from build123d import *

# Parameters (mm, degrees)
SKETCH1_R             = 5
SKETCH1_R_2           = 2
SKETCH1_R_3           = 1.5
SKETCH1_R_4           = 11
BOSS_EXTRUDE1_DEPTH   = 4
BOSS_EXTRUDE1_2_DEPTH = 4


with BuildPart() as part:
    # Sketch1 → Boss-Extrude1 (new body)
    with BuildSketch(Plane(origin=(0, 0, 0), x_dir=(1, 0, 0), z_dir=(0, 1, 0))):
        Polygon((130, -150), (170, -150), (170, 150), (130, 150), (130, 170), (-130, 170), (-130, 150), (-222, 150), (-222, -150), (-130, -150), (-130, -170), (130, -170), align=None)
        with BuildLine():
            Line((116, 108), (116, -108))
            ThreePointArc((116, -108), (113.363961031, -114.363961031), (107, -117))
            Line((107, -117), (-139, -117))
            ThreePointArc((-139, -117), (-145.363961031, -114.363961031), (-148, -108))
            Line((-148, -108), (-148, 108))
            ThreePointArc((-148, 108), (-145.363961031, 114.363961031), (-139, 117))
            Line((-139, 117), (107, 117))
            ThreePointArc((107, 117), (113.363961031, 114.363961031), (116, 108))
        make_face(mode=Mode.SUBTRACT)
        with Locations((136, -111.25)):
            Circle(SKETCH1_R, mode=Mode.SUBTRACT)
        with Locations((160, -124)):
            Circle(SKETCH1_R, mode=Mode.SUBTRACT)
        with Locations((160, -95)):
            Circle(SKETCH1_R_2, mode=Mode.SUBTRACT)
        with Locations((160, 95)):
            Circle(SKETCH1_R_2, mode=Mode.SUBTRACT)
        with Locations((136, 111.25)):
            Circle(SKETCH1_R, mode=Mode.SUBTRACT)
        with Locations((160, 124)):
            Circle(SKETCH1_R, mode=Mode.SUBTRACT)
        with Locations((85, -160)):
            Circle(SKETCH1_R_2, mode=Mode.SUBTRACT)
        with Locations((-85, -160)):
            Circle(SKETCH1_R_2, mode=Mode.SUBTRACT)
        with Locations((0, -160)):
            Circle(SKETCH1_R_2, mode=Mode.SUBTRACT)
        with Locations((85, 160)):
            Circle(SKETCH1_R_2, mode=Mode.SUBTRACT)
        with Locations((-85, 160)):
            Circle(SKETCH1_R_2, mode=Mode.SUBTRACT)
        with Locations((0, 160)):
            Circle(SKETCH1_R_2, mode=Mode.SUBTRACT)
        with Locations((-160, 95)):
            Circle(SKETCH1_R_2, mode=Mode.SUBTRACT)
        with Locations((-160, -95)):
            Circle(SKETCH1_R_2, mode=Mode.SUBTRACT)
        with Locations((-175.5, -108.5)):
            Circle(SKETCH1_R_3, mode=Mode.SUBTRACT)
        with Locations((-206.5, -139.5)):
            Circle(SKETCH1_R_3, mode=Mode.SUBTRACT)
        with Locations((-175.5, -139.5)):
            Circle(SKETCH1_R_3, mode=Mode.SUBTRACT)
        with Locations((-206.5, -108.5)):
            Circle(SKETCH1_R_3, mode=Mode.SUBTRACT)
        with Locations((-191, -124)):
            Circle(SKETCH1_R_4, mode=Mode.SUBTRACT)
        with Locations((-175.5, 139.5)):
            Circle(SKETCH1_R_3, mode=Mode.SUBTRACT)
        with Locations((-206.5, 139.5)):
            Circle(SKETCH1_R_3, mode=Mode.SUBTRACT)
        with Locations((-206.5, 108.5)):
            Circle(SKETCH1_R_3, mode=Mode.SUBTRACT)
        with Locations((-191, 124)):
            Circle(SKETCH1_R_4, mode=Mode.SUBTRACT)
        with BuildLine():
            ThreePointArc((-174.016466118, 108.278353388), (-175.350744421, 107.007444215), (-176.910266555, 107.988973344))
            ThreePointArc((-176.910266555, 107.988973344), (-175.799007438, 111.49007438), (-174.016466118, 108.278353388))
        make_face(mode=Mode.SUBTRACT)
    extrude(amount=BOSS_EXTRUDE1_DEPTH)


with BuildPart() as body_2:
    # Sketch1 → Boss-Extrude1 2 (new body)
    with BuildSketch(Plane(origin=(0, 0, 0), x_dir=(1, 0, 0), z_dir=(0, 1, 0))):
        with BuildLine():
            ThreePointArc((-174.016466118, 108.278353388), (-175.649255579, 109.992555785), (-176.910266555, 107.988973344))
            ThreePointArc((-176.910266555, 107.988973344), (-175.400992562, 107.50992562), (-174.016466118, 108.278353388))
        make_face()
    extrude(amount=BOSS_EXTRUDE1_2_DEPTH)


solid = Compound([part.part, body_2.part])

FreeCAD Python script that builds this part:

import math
import FreeCAD as App
import Part
import Sketcher

V = App.Vector
Q = App.Units.Quantity


def add_polygon(sketch, points):
    """Adds a closed chain of lines whose ends are joined by coincident constraints."""
    first, n = sketch.GeometryCount, len(points)
    for a, b in zip(points, points[1:] + points[:1]):
        sketch.addGeometry(Part.LineSegment(App.Vector(*a, 0), App.Vector(*b, 0)), False)
    for i in range(n):
        sketch.addConstraint(Sketcher.Constraint("Coincident", first + i, 2, first + (i + 1) % n, 1))

doc = App.newDocument("Part")
body = doc.addObject("PartDesign::Body", "Body")

sketch1 = body.newObject("Sketcher::SketchObject", "Sketch")
sketch1.AttachmentSupport = (doc.getObject("XZ_Plane"), [""])
sketch1.MapMode = "FlatFace"
add_polygon(sketch1, [(130, 150), (170, 150), (170, -150), (130, -150), (130, -170), (-130, -170), (-130, -150), (-222, -150), (-222, 150), (-130, 150), (-130, 170), (130, 170)])
sketch1.addGeometry(Part.Circle(V(-206.5, 139.5, 0), V(0, 0, 1), 1.5), False)
sketch1.addGeometry(Part.Circle(V(-191, 124, 0), V(0, 0, 1), 11), False)
sketch1.addGeometry(Part.Circle(V(-175.5, 139.5, 0), V(0, 0, 1), 1.5), False)
sketch1.addGeometry(Part.Circle(V(-206.5, 108.5, 0), V(0, 0, 1), 1.5), False)
sketch1.addGeometry(Part.Circle(V(-175.5, 108.5, 0), V(0, 0, 1), 1.5), False)
sketch1.addGeometry(Part.Circle(V(-160, 95, 0), V(0, 0, 1), 2), False)
sketch1.addGeometry(Part.Circle(V(-85, 160, 0), V(0, 0, 1), 2), False)
sketch1.addGeometry(Part.Circle(V(0, 160, 0), V(0, 0, 1), 2), False)
sketch1.addGeometry(Part.Circle(V(85, 160, 0), V(0, 0, 1), 2), False)
sketch1.addGeometry(Part.Circle(V(160, 124, 0), V(0, 0, 1), 5), False)
sketch1.addGeometry(Part.Circle(V(136, 111.25, 0), V(0, 0, 1), 5), False)
sketch1.addGeometry(Part.Circle(V(160, 95, 0), V(0, 0, 1), 2), False)
sketch1.addGeometry(Part.Circle(V(-206.5, -108.5, 0), V(0, 0, 1), 1.5), False)
sketch1.addGeometry(Part.ArcOfCircle(Part.Circle(V(-175.6, -109.5, 0), V(0, 0, 1), 2), math.radians(130.929757), math.radians(397.649057)), False)
sketch1.addGeometry(Part.ArcOfCircle(Part.Circle(V(-175.5, -108.5, 0), V(0, 0, 1), 1.5), math.radians(8.497393), math.radians(160.081421)), False)
sketch1.addGeometry(Part.Circle(V(-160, -95, 0), V(0, 0, 1), 2), False)
sketch1.addGeometry(Part.Circle(V(-191, -124, 0), V(0, 0, 1), 11), False)
sketch1.addGeometry(Part.Circle(V(-206.5, -139.5, 0), V(0, 0, 1), 1.5), False)
sketch1.addGeometry(Part.Circle(V(-175.5, -139.5, 0), V(0, 0, 1), 1.5), False)
sketch1.addGeometry(Part.Circle(V(-85, -160, 0), V(0, 0, 1), 2), False)
sketch1.addGeometry(Part.ArcOfCircle(Part.Circle(V(107, -108, 0), V(0, 0, 1), 9), math.radians(-90), math.radians(0)), False)
sketch1.addGeometry(Part.LineSegment(V(116, -108, 0), V(116, 108, 0)), False)
sketch1.addGeometry(Part.ArcOfCircle(Part.Circle(V(107, 108, 0), V(0, 0, 1), 9), math.radians(0), math.radians(90)), False)
sketch1.addGeometry(Part.LineSegment(V(107, 117, 0), V(-139, 117, 0)), False)
sketch1.addGeometry(Part.ArcOfCircle(Part.Circle(V(-139, 108, 0), V(0, 0, 1), 9), math.radians(90), math.radians(180)), False)
sketch1.addGeometry(Part.LineSegment(V(-148, 108, 0), V(-148, -108, 0)), False)
sketch1.addGeometry(Part.ArcOfCircle(Part.Circle(V(-139, -108, 0), V(0, 0, 1), 9), math.radians(180), math.radians(270)), False)
sketch1.addGeometry(Part.LineSegment(V(-139, -117, 0), V(107, -117, 0)), False)
sketch1.addGeometry(Part.Circle(V(0, -160, 0), V(0, 0, 1), 2), False)
sketch1.addGeometry(Part.Circle(V(160, -95, 0), V(0, 0, 1), 2), False)
sketch1.addGeometry(Part.Circle(V(136, -111.25, 0), V(0, 0, 1), 5), False)
sketch1.addGeometry(Part.Circle(V(85, -160, 0), V(0, 0, 1), 2), False)
sketch1.addGeometry(Part.Circle(V(160, -124, 0), V(0, 0, 1), 5), False)
sketch1.addConstraint([
    Sketcher.Constraint("Coincident", 25, 1, 26, 2),
    Sketcher.Constraint("Coincident", 26, 1, 25, 2),
    Sketcher.Constraint("Tangent", 32, 2, 33, 1),
    Sketcher.Constraint("Tangent", 33, 2, 34, 1),
    Sketcher.Constraint("Tangent", 34, 2, 35, 1),
    Sketcher.Constraint("Tangent", 35, 2, 36, 1),
    Sketcher.Constraint("Tangent", 36, 2, 37, 1),
    Sketcher.Constraint("Tangent", 37, 2, 38, 1),
    Sketcher.Constraint("Tangent", 38, 2, 39, 1),
    Sketcher.Constraint("Tangent", 39, 2, 32, 1),
    Sketcher.Constraint("Horizontal", 0),
    Sketcher.Constraint("Vertical", 1),
    Sketcher.Constraint("Horizontal", 2),
    Sketcher.Constraint("Vertical", 3),
    Sketcher.Constraint("Horizontal", 4),
    Sketcher.Constraint("Vertical", 5),
    Sketcher.Constraint("Horizontal", 6),
    Sketcher.Constraint("Vertical", 7),
    Sketcher.Constraint("Horizontal", 8),
    Sketcher.Constraint("Vertical", 9),
    Sketcher.Constraint("Horizontal", 10),
    Sketcher.Constraint("Vertical", 11),
    Sketcher.Constraint("Vertical", 33),
    Sketcher.Constraint("Horizontal", 35),
    Sketcher.Constraint("Vertical", 37),
    Sketcher.Constraint("Horizontal", 39),
    Sketcher.Constraint("Equal", 12, 14),
    Sketcher.Constraint("Equal", 14, 15),
    Sketcher.Constraint("Equal", 15, 16),
    Sketcher.Constraint("Equal", 17, 18),
    Sketcher.Constraint("Equal", 18, 19),
    Sketcher.Constraint("Equal", 19, 20),
    Sketcher.Constraint("Equal", 21, 22),
    Sketcher.Constraint("Equal", 20, 23),
    Sketcher.Constraint("Equal", 16, 24),
    Sketcher.Constraint("Equal", 23, 25),
    Sketcher.Constraint("Equal", 24, 26),
    Sketcher.Constraint("Equal", 25, 27),
    Sketcher.Constraint("Equal", 13, 28),
    Sketcher.Constraint("Equal", 26, 29),
    Sketcher.Constraint("Equal", 29, 30),
    Sketcher.Constraint("Equal", 27, 31),
    Sketcher.Constraint("Equal", 32, 34),
    Sketcher.Constraint("Equal", 34, 36),
    Sketcher.Constraint("Equal", 36, 38),
    Sketcher.Constraint("Equal", 31, 40),
    Sketcher.Constraint("Equal", 40, 41),
    Sketcher.Constraint("Equal", 22, 42),
    Sketcher.Constraint("Equal", 41, 43),
    Sketcher.Constraint("Equal", 42, 44),
    Sketcher.Constraint("Symmetric", 23, 3, 27, 3, -1, 1),
    Sketcher.Constraint("Symmetric", 20, 3, 31, 3, -1, 1),
    Sketcher.Constraint("Symmetric", 19, 3, 40, 3, -1, 1),
    Sketcher.Constraint("Symmetric", 17, 3, 41, 3, -1, 1),
    Sketcher.Constraint("Symmetric", 18, 3, 43, 3, -1, 1),
    Sketcher.Constraint("Symmetric", 2, 2, 8, 2, -1, 1),
    Sketcher.Constraint("Symmetric", 4, 2, 10, 2, -1, 1),
    Sketcher.Constraint("Symmetric", 18, 3, 20, 3, -2),
    Sketcher.Constraint("Symmetric", 17, 3, 23, 3, -2),
    Sketcher.Constraint("Symmetric", 2, 2, 5, 2, -2),
    Sketcher.Constraint("Symmetric", 15, 3, 24, 3, -1),
    Sketcher.Constraint("Symmetric", 16, 3, 26, 3, -1),
    Sketcher.Constraint("Symmetric", 13, 3, 28, 3, -1),
    Sketcher.Constraint("Symmetric", 12, 3, 29, 3, -1),
    Sketcher.Constraint("Symmetric", 14, 3, 30, 3, -1),
    Sketcher.Constraint("Symmetric", 22, 3, 42, 3, -1),
    Sketcher.Constraint("Symmetric", 21, 3, 44, 3, -1),
    Sketcher.Constraint("PointOnObject", 19, 3, -2),
    Sketcher.Constraint("Horizontal", 12, 3, 14, 3),
    Sketcher.Constraint("Horizontal", 15, 3, 16, 3),
    Sketcher.Constraint("Horizontal", 18, 3, 19, 3),
    Sketcher.Constraint("Horizontal", 13, 3, 21, 3),
    Sketcher.Constraint("Horizontal", 0, 2, 7, 2),
    Sketcher.Constraint("Vertical", 12, 3, 15, 3),
    Sketcher.Constraint("Vertical", 14, 3, 16, 3),
    Sketcher.Constraint("Vertical", 21, 3, 23, 3),
    Sketcher.Constraint("Diameter", 12, Q("3 mm")),
    Sketcher.Constraint("Diameter", 13, Q("22 mm")),
    Sketcher.Constraint("Diameter", 17, Q("4 mm")),
    Sketcher.Constraint("Diameter", 21, Q("10 mm")),
    Sketcher.Constraint("Radius", 32, Q("9 mm")),
    Sketcher.Constraint("DistanceX", 0, 1, 0, 2, Q("40 mm")),
    Sketcher.Constraint("DistanceX", 4, 2, 4, 1, Q("260 mm")),
    Sketcher.Constraint("DistanceX", 6, 2, 6, 1, Q("92 mm")),
    Sketcher.Constraint("DistanceX", 35, 2, 35, 1, Q("246 mm")),
    Sketcher.Constraint("DistanceY", 1, 2, 1, 1, Q("300 mm")),
    Sketcher.Constraint("DistanceY", 3, 2, 3, 1, Q("20 mm")),
    Sketcher.Constraint("DistanceY", 33, 1, 33, 2, Q("216 mm")),
    Sketcher.Constraint("DistanceX", 13, 3, -1, 1, Q("191 mm")),
    Sketcher.Constraint("DistanceY", -1, 1, 13, 3, Q("124 mm")),
    Sketcher.Constraint("DistanceX", 17, 3, -1, 1, Q("160 mm")),
    Sketcher.Constraint("DistanceY", -1, 1, 17, 3, Q("95 mm")),
    Sketcher.Constraint("DistanceX", 18, 3, -1, 1, Q("85 mm")),
    Sketcher.Constraint("DistanceY", -1, 1, 18, 3, Q("160 mm")),
    Sketcher.Constraint("DistanceX", -1, 1, 22, 3, Q("136 mm")),
    Sketcher.Constraint("DistanceX", -1, 1, 32, 3, Q("107 mm")),
    Sketcher.Constraint("DistanceY", 32, 3, -1, 1, Q("108 mm")),
    Sketcher.Constraint("DistanceX", 12, 3, 14, 3, Q("31 mm")),
    Sketcher.Constraint("DistanceY", 15, 3, 12, 3, Q("31 mm")),
    Sketcher.Constraint("DistanceY", 24, 3, 15, 3, Q("217 mm")),
    Sketcher.Constraint("DistanceY", 25, 3, 24, 3, Q("1 mm")),
    Sketcher.Constraint("DistanceX", 12, 3, -1, 1, Q("206.5 mm")),
    Sketcher.Constraint("DistanceX", 25, 3, -1, 1, Q("175.6 mm")),
    Sketcher.Constraint("DistanceY", -1, 1, 22, 3, Q("111.25 mm")),
])
pad1 = body.newObject("PartDesign::Pad", "Pad")
pad1.Profile = sketch1
pad1.Length = 4
pad1.Reversed = True
body2 = doc.addObject("PartDesign::Body", "Body001")

sketch2 = body2.newObject("Sketcher::SketchObject", "Sketch001")
sketch2.AttachmentSupport = (doc.getObject("XZ_Plane001"), [""])
sketch2.MapMode = "FlatFace"
sketch2.addGeometry([
    Part.ArcOfCircle(Part.Circle(V(-175.5, -108.5, 0), V(0, 0, 1), 1.5), math.radians(160.081421), math.radians(368.497393)),
    Part.ArcOfCircle(Part.Circle(V(-175.6, -109.5, 0), V(0, 0, 1), 2), math.radians(37.649057), math.radians(130.929757)),
], False)
sketch2.addConstraint([
    Sketcher.Constraint("Coincident", 0, 1, 1, 2),
    Sketcher.Constraint("Coincident", 1, 1, 0, 2),
    Sketcher.Constraint("Radius", 1, Q("2 mm")),
    Sketcher.Constraint("Radius", 0, Q("1.5 mm")),
    Sketcher.Constraint("DistanceY", 1, 3, 0, 3, Q("1 mm")),
    Sketcher.Constraint("DistanceX", 0, 3, -1, 1, Q("175.5 mm")),
    Sketcher.Constraint("DistanceY", 0, 3, -1, 1, Q("108.5 mm")),
    Sketcher.Constraint("DistanceX", 1, 3, -1, 1, Q("175.6 mm")),
])
pad2 = body2.newObject("PartDesign::Pad", "Pad001")
pad2.Profile = sketch2
pad2.Length = 4
pad2.Reversed = True

doc.recompute()
